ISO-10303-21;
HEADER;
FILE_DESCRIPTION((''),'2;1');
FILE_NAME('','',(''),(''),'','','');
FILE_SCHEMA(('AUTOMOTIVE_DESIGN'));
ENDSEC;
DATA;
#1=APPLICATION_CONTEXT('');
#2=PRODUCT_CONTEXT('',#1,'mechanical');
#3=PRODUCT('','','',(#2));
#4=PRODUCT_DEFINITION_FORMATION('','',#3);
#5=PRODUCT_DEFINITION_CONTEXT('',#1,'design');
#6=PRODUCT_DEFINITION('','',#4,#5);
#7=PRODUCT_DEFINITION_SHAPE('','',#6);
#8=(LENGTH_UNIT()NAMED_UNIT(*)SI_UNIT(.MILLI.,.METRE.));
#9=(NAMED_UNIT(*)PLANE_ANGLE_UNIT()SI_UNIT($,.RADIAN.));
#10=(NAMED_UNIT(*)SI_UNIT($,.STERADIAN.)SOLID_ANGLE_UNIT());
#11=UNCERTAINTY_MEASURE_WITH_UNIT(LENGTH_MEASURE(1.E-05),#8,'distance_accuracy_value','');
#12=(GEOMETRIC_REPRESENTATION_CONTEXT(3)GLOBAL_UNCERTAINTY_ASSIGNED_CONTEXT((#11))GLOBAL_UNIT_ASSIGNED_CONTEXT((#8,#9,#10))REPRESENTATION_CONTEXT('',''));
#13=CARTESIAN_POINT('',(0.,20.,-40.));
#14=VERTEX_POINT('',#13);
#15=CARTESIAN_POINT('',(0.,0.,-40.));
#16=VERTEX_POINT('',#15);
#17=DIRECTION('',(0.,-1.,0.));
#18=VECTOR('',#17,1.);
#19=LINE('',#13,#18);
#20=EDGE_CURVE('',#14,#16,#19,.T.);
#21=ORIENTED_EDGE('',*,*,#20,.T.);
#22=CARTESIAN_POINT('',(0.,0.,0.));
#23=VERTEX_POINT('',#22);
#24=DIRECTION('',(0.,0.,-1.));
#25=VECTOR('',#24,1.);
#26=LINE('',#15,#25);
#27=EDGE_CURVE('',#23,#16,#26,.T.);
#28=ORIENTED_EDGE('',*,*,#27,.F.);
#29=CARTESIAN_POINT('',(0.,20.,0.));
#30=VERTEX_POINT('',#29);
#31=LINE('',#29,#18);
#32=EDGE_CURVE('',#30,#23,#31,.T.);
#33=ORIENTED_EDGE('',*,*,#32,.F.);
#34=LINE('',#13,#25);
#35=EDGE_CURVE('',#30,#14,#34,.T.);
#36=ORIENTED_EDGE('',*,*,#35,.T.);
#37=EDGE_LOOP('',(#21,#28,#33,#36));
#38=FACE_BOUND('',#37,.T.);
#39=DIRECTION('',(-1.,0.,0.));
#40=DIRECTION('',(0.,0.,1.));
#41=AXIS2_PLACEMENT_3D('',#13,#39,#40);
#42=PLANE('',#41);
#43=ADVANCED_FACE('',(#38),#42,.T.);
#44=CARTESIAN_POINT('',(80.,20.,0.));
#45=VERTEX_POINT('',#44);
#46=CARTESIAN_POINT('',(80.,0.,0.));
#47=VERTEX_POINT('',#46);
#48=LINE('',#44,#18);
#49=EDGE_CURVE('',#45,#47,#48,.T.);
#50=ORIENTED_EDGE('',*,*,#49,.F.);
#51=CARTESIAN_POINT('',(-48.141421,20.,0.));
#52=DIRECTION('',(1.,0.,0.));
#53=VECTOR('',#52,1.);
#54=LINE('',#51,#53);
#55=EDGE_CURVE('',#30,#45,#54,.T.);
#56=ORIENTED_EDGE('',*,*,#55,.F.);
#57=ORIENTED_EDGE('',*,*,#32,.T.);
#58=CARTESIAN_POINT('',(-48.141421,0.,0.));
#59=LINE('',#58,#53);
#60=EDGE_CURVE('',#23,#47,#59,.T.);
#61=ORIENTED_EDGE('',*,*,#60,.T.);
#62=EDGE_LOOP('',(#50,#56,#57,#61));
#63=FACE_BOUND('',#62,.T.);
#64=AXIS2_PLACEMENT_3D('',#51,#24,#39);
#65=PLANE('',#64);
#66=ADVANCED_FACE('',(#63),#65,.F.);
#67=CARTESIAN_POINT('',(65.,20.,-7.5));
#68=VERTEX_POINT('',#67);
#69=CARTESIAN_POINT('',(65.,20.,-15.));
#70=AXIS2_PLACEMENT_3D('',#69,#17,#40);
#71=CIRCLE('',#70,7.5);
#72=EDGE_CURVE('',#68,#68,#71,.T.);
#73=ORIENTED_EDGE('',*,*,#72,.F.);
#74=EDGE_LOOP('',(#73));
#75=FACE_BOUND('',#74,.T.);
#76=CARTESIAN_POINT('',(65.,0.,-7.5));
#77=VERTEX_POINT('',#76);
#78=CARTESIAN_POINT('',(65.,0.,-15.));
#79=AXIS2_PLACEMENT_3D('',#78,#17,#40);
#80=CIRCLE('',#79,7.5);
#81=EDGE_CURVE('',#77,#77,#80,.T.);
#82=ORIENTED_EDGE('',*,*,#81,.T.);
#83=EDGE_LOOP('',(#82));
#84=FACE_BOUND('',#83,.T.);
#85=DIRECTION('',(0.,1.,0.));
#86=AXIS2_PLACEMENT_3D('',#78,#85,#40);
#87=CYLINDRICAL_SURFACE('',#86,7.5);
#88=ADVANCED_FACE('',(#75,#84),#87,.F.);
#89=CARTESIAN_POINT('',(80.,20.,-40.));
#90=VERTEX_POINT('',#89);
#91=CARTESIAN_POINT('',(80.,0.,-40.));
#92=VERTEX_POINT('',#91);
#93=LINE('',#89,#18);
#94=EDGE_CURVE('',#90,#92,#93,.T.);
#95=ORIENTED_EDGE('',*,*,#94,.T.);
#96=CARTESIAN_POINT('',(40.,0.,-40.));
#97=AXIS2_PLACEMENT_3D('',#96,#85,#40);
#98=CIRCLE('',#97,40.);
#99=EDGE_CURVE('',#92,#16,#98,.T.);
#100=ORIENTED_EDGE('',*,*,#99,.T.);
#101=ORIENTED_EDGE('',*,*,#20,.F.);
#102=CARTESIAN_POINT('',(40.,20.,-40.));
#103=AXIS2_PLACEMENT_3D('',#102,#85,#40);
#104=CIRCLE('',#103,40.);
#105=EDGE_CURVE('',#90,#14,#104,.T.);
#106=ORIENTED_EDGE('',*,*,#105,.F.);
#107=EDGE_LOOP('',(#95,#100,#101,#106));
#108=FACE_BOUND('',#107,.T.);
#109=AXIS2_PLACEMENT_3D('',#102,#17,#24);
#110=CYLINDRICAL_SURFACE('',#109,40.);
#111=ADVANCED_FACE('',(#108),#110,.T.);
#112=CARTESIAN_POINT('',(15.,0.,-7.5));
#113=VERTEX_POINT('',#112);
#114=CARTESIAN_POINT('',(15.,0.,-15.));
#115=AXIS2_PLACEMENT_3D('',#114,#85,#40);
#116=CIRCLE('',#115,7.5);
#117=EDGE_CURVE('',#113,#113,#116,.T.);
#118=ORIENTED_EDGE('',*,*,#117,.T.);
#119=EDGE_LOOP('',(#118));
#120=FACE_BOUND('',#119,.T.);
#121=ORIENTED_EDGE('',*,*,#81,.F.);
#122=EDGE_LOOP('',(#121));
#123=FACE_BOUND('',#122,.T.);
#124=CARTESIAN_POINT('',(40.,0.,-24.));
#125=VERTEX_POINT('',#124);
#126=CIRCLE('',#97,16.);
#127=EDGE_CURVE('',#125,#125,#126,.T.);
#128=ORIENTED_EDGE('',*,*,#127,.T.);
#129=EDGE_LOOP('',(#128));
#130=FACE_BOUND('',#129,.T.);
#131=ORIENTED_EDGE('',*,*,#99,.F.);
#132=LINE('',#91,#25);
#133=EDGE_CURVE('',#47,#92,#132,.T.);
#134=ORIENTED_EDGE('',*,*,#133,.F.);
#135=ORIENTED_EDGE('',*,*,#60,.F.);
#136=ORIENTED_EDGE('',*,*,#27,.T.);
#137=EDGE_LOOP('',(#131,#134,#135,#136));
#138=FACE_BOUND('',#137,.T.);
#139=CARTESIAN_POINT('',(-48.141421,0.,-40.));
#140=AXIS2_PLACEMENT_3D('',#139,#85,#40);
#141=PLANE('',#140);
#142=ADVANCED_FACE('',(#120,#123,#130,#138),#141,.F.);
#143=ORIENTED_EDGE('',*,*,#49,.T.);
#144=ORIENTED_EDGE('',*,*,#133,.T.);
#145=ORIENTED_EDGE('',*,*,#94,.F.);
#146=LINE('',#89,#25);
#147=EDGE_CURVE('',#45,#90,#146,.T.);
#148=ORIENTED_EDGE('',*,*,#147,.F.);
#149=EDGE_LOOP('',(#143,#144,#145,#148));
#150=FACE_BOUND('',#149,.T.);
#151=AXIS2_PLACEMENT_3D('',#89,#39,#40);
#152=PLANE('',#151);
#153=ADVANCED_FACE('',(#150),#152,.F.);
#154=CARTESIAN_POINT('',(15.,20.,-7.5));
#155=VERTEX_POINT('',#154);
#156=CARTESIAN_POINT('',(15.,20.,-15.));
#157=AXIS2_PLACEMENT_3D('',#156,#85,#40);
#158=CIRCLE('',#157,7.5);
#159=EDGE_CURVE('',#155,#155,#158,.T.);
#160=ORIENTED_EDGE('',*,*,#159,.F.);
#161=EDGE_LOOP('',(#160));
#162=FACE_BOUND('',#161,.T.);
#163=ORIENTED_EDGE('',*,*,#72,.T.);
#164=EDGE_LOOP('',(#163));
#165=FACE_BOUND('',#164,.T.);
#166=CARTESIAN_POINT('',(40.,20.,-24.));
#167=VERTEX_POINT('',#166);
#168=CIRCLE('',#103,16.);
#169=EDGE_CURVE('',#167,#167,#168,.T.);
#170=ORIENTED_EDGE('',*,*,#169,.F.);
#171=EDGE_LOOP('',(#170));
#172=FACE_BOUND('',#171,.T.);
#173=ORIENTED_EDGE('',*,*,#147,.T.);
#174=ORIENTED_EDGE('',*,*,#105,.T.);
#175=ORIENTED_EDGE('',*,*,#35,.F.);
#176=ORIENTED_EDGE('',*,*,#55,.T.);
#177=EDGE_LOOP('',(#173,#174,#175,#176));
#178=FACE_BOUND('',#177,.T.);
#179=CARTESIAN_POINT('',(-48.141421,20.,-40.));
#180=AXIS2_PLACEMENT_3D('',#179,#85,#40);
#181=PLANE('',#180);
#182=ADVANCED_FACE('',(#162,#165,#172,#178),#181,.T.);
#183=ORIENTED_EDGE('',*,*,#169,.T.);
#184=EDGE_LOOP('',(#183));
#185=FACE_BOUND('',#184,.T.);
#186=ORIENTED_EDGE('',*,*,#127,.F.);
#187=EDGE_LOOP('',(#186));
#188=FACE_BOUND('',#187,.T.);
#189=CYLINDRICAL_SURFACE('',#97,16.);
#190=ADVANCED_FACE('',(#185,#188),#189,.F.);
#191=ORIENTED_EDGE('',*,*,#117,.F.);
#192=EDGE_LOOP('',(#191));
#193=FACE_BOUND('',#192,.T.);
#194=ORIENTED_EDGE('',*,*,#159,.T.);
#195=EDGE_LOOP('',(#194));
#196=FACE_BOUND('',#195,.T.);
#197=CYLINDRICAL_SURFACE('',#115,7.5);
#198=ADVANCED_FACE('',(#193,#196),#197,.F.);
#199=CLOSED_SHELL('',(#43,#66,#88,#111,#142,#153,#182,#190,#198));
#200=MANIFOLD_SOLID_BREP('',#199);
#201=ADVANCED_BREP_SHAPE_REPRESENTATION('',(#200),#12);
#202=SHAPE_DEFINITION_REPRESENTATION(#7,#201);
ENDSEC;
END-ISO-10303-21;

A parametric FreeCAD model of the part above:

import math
import FreeCAD as App
import Part
import Sketcher

doc = App.newDocument("Part")
body = doc.addObject("PartDesign::Body", "Body")

sketch1 = body.newObject("Sketcher::SketchObject", "Sketch")
sketch1.AttachmentSupport = (doc.getObject("XZ_Plane"), [""])
sketch1.MapMode = "FlatFace"
sketch1.addGeometry(Part.ArcOfCircle(Part.Circle(App.Vector(40, -40, 0), App.Vector(0, 0, 1), 40), math.radians(180), math.radians(360)), False)
sketch1.addGeometry(Part.LineSegment(App.Vector(0, -40, 0), App.Vector(0, 0, 0)), False)
sketch1.addGeometry(Part.LineSegment(App.Vector(0, 0, 0), App.Vector(80, 0, 0)), False)
sketch1.addGeometry(Part.LineSegment(App.Vector(80, 0, 0), App.Vector(80, -40, 0)), False)
sketch1.addConstraint(Sketcher.Constraint("Tangent", 0, 1, 1, 1))
sketch1.addConstraint(Sketcher.Constraint("Coincident", 1, 2, 2, 1))
sketch1.addConstraint(Sketcher.Constraint("Coincident", 2, 2, 3, 1))
sketch1.addConstraint(Sketcher.Constraint("Tangent", 3, 2, 0, 2))
sketch1.addConstraint(Sketcher.Constraint("Vertical", 1))
sketch1.addConstraint(Sketcher.Constraint("Horizontal", 2))
sketch1.addConstraint(Sketcher.Constraint("Vertical", 3))
sketch1.addConstraint(Sketcher.Constraint("Coincident", 1, 2, -1, 1))
sketch1.addConstraint(Sketcher.Constraint("Radius", 0, 40.0))
sketch1.addConstraint(Sketcher.Constraint("DistanceY", 1, 1, 1, 2, 40.0))
pad1 = body.newObject("PartDesign::Pad", "Pad")
pad1.Profile = sketch1
pad1.Length = 20
pad1.Reversed = True

sketch2 = body.newObject("Sketcher::SketchObject", "Sketch001")
sketch2.AttachmentSupport = (doc.getObject("XZ_Plane"), [""])
sketch2.MapMode = "FlatFace"
sketch2.AttachmentOffset = App.Placement(App.Vector(0, 0, -20), App.Rotation())
sketch2.addGeometry(Part.Circle(App.Vector(40, -40, 0), App.Vector(0, 0, 1), 16), False)
sketch2.addConstraint(Sketcher.Constraint("Diameter", 0, 32.0))
sketch2.addConstraint(Sketcher.Constraint("DistanceX", -1, 1, 0, 3, 40.0))
sketch2.addConstraint(Sketcher.Constraint("DistanceY", 0, 3, -1, 1, 40.0))
pocket1 = body.newObject("PartDesign::Pocket", "Pocket")
pocket1.Profile = sketch2
pocket1.Type = "ThroughAll"
pocket1.Reversed = True

sketch3 = body.newObject("Sketcher::SketchObject", "Sketch002")
sketch3.AttachmentSupport = (doc.getObject("XZ_Plane"), [""])
sketch3.MapMode = "FlatFace"
sketch3.AttachmentOffset = App.Placement(App.Vector(0, 0, -20), App.Rotation())
sketch3.addGeometry(Part.Circle(App.Vector(15, -15, 0), App.Vector(0, 0, 1), 7.5), False)
sketch3.addConstraint(Sketcher.Constraint("Diameter", 0, 15.0))
sketch3.addConstraint(Sketcher.Constraint("DistanceX", -1, 1, 0, 3, 15.0))
sketch3.addConstraint(Sketcher.Constraint("DistanceY", 0, 3, -1, 1, 15.0))
pocket2 = body.newObject("PartDesign::Pocket", "Pocket001")
pocket2.Profile = sketch3
pocket2.Type = "ThroughAll"
pocket2.Reversed = True
doc.recompute()

datumplane = body.newObject("PartDesign::Plane", "DatumPlane")
datumplane.AttachmentSupport = (doc.getObject("YZ_Plane"), [""])
datumplane.MapMode = "FlatFace"
datumplane.AttachmentOffset = App.Placement(App.Vector(0, 0, 40), App.Rotation())
mirrored = body.newObject("PartDesign::Mirrored", "Mirrored")
mirrored.Originals = [pocket2]
mirrored.MirrorPlane = (datumplane, [""])
body.Tip = mirrored

doc.recompute()
